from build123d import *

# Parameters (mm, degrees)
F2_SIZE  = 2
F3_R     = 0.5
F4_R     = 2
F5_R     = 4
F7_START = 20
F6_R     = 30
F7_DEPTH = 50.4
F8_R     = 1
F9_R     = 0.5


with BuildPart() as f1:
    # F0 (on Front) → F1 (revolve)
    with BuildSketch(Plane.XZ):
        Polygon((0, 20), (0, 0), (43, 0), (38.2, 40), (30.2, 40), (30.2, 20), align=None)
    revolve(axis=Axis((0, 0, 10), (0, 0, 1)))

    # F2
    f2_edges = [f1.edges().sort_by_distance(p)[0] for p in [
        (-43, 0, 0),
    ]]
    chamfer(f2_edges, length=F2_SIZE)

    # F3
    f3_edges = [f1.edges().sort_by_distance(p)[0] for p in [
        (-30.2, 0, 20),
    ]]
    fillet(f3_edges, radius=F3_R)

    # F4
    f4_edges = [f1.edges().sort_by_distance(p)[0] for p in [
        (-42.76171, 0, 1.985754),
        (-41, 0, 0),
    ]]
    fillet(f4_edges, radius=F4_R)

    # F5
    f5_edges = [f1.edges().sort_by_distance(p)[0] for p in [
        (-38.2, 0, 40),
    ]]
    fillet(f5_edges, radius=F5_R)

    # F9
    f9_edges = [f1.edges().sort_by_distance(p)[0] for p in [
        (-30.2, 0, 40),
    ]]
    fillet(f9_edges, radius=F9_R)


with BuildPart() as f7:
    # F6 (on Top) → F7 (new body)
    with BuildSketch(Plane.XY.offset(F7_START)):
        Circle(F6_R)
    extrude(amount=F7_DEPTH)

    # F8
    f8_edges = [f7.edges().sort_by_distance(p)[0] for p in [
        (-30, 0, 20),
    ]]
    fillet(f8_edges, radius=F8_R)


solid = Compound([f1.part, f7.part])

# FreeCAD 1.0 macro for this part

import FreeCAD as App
import Part
import Sketcher
Q = App.Units.Quantity


def edges_at(feature, points):
    """Names of the edges that pass closest to the given points."""
    edges = feature.Shape.Edges
    near = lambda p: min(range(len(edges)), key=lambda i: edges[i].distToShape(Part.Vertex(*p))[0])
    return sorted({f"Edge{near(p) + 1}" for p in points})


def add_polygon(sketch, points):
    """Adds a closed chain of lines whose ends are joined by coincident constraints."""
    first, n = sketch.GeometryCount, len(points)
    for a, b in zip(points, points[1:] + points[:1]):
        sketch.addGeometry(Part.LineSegment(App.Vector(*a, 0), App.Vector(*b, 0)), False)
    for i in range(n):
        sketch.addConstraint(Sketcher.Constraint("Coincident", first + i, 2, first + (i + 1) % n, 1))

doc = App.newDocument("Part")
body = doc.addObject("PartDesign::Body", "Body")

sketch1 = body.newObject("Sketcher::SketchObject", "Sketch")
sketch1.AttachmentSupport = (doc.getObject("XZ_Plane"), [""])
sketch1.MapMode = "FlatFace"
add_polygon(sketch1, [(0, 20), (0, 0), (43, 0), (38, 40), (30, 40), (30, 20)])
sketch1.addConstraint([
    Sketcher.Constraint("Vertical", 0),
    Sketcher.Constraint("Horizontal", 1),
    Sketcher.Constraint("Horizontal", 3),
    Sketcher.Constraint("Vertical", 4),
    Sketcher.Constraint("Horizontal", 5),
    Sketcher.Constraint("Coincident", 0, 2, -1, 1),
    Sketcher.Constraint("Equal", 0, 4),
    Sketcher.Constraint("DistanceX", 1, 1, 1, 2, Q("43 mm")),
    Sketcher.Constraint("DistanceX", 3, 2, 3, 1, Q("8 mm")),
    Sketcher.Constraint("DistanceY", 0, 2, 0, 1, Q("20 mm")),
    Sketcher.Constraint("DistanceX", 5, 2, 5, 1, Q("30.2 mm")),
])
revolution = body.newObject("PartDesign::Revolution", "Revolution")
revolution.Profile = sketch1
revolution.ReferenceAxis = (sketch1, ["V_Axis"])
revolution.Angle = 360
doc.recompute()

chamfer = body.newObject("PartDesign::Chamfer", "Chamfer")
chamfer.Base = (revolution, edges_at(revolution, [(-43, 0, 0)]))
chamfer.Size = 2
doc.recompute()

fillet = body.newObject("PartDesign::Fillet", "Fillet")
fillet.Base = (chamfer, edges_at(chamfer, [(-30.2, 0, 20)]))
fillet.Radius = 0.5
doc.recompute()

fillet2 = body.newObject("PartDesign::Fillet", "Fillet001")
fillet2.Base = (fillet, edges_at(fillet, [(-42.762, 0, 1.986), (-41, 0, 0)]))
fillet2.Radius = 2
doc.recompute()

fillet3 = body.newObject("PartDesign::Fillet", "Fillet002")
fillet3.Base = (fillet2, edges_at(fillet2, [(-38.2, 0, 40)]))
fillet3.Radius = 4
doc.recompute()

fillet4 = body.newObject("PartDesign::Fillet", "Fillet003")
fillet4.Base = (fillet3, edges_at(fillet3, [(-30.2, 0, 40)]))
fillet4.Radius = 0.5
body2 = doc.addObject("PartDesign::Body", "Body001")

sketch2 = body2.newObject("Sketcher::SketchObject", "Sketch001")
sketch2.AttachmentSupport = (doc.getObject("XY_Plane001"), [""])
sketch2.MapMode = "FlatFace"
sketch2.AttachmentOffset = App.Placement(App.Vector(0, 0, 20), App.Rotation())
sketch2.addGeometry(Part.Circle(App.Vector(0, 0, 0), App.Vector(0, 0, 1), 30), False)
sketch2.addConstraint([
    Sketcher.Constraint("Coincident", 0, 3, -1, 1),
    Sketcher.Constraint("Diameter", 0, Q("60 mm")),
])
pad1 = body2.newObject("PartDesign::Pad", "Pad")
pad1.Profile = sketch2
pad1.Length = 50.4
doc.recompute()

fillet5 = body2.newObject("PartDesign::Fillet", "Fillet004")
fillet5.Base = (pad1, edges_at(pad1, [(-30, 0, 20)]))
fillet5.Radius = 1

doc.recompute()
